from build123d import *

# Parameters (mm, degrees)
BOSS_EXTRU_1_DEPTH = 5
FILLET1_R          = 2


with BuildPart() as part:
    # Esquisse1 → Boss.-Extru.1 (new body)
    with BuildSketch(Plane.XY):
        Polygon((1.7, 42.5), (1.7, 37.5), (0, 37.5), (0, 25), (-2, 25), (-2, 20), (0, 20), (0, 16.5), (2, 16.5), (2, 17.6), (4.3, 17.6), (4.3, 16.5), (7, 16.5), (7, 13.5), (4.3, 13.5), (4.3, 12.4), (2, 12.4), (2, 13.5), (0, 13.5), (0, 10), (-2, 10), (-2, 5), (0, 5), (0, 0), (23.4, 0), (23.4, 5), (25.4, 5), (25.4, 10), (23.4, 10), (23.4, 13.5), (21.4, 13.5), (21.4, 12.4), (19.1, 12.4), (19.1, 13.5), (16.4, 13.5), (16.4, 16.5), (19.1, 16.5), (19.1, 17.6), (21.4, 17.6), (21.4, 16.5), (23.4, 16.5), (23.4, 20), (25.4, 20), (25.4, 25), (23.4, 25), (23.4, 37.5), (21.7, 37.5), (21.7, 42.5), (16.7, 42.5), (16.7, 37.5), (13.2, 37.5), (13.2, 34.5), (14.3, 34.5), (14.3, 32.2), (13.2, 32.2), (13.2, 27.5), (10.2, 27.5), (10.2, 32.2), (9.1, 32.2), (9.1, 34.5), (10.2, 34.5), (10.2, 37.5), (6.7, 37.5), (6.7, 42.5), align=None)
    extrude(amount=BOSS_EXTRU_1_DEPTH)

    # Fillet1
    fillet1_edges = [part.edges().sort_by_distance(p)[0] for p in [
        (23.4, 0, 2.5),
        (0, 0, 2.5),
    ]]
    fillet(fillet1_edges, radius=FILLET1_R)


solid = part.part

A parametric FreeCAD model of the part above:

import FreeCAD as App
import Part
import Sketcher
Q = App.Units.Quantity


def edges_at(feature, points):
    """Names of the edges that pass closest to the given points."""
    edges = feature.Shape.Edges
    near = lambda p: min(range(len(edges)), key=lambda i: edges[i].distToShape(Part.Vertex(*p))[0])
    return sorted({f"Edge{near(p) + 1}" for p in points})

doc = App.newDocument("Part")
body = doc.addObject("PartDesign::Body", "Body")

sketch1 = body.newObject("Sketcher::SketchObject", "Sketch")
sketch1.AttachmentSupport = (doc.getObject("XY_Plane"), [""])
sketch1.MapMode = "FlatFace"
sketch1.addGeometry([
    Part.LineSegment(App.Vector(1.7, 42.5, 0), App.Vector(1.7, 37.5, 0)),
    Part.LineSegment(App.Vector(1.7, 37.5, 0), App.Vector(0, 37.5, 0)),
    Part.LineSegment(App.Vector(0, 37.5, 0), App.Vector(0, 25, 0)),
    Part.LineSegment(App.Vector(0, 25, 0), App.Vector(-2, 25, 0)),
    Part.LineSegment(App.Vector(-2, 25, 0), App.Vector(-2, 20, 0)),
    Part.LineSegment(App.Vector(-2, 20, 0), App.Vector(0, 20, 0)),
    Part.LineSegment(App.Vector(0, 20, 0), App.Vector(0, 16.5, 0)),
    Part.LineSegment(App.Vector(0, 16.5, 0), App.Vector(2, 16.5, 0)),
    Part.LineSegment(App.Vector(2, 16.5, 0), App.Vector(2, 17.6, 0)),
    Part.LineSegment(App.Vector(2, 17.6, 0), App.Vector(4.3, 17.6, 0)),
    Part.LineSegment(App.Vector(4.3, 17.6, 0), App.Vector(4.3, 16.5, 0)),
    Part.LineSegment(App.Vector(4.3, 16.5, 0), App.Vector(7, 16.5, 0)),
    Part.LineSegment(App.Vector(7, 16.5, 0), App.Vector(7, 13.5, 0)),
    Part.LineSegment(App.Vector(7, 13.5, 0), App.Vector(4.3, 13.5, 0)),
    Part.LineSegment(App.Vector(4.3, 13.5, 0), App.Vector(4.3, 12.4, 0)),
    Part.LineSegment(App.Vector(4.3, 12.4, 0), App.Vector(2, 12.4, 0)),
    Part.LineSegment(App.Vector(2, 12.4, 0), App.Vector(2, 13.5, 0)),
    Part.LineSegment(App.Vector(2, 13.5, 0), App.Vector(0, 13.5, 0)),
    Part.LineSegment(App.Vector(0, 13.5, 0), App.Vector(0, 10, 0)),
    Part.LineSegment(App.Vector(0, 10, 0), App.Vector(-2, 10, 0)),
    Part.LineSegment(App.Vector(-2, 10, 0), App.Vector(-2, 5, 0)),
    Part.LineSegment(App.Vector(-2, 5, 0), App.Vector(0, 5, 0)),
    Part.LineSegment(App.Vector(0, 5, 0), App.Vector(0, 0, 0)),
    Part.LineSegment(App.Vector(0, 0, 0), App.Vector(23.4, 0, 0)),
    Part.LineSegment(App.Vector(23.4, 0, 0), App.Vector(23.4, 5, 0)),
    Part.LineSegment(App.Vector(23.4, 5, 0), App.Vector(25.4, 5, 0)),
    Part.LineSegment(App.Vector(25.4, 5, 0), App.Vector(25.4, 10, 0)),
    Part.LineSegment(App.Vector(25.4, 10, 0), App.Vector(23.4, 10, 0)),
    Part.LineSegment(App.Vector(23.4, 10, 0), App.Vector(23.4, 13.5, 0)),
    Part.LineSegment(App.Vector(23.4, 13.5, 0), App.Vector(21.4, 13.5, 0)),
    Part.LineSegment(App.Vector(21.4, 13.5, 0), App.Vector(21.4, 12.4, 0)),
    Part.LineSegment(App.Vector(21.4, 12.4, 0), App.Vector(19.1, 12.4, 0)),
    Part.LineSegment(App.Vector(19.1, 12.4, 0), App.Vector(19.1, 13.5, 0)),
    Part.LineSegment(App.Vector(19.1, 13.5, 0), App.Vector(16.4, 13.5, 0)),
    Part.LineSegment(App.Vector(16.4, 13.5, 0), App.Vector(16.4, 16.5, 0)),
    Part.LineSegment(App.Vector(16.4, 16.5, 0), App.Vector(19.1, 16.5, 0)),
    Part.LineSegment(App.Vector(19.1, 16.5, 0), App.Vector(19.1, 17.6, 0)),
    Part.LineSegment(App.Vector(19.1, 17.6, 0), App.Vector(21.4, 17.6, 0)),
    Part.LineSegment(App.Vector(21.4, 17.6, 0), App.Vector(21.4, 16.5, 0)),
    Part.LineSegment(App.Vector(21.4, 16.5, 0), App.Vector(23.4, 16.5, 0)),
    Part.LineSegment(App.Vector(23.4, 16.5, 0), App.Vector(23.4, 20, 0)),
    Part.LineSegment(App.Vector(23.4, 20, 0), App.Vector(25.4, 20, 0)),
    Part.LineSegment(App.Vector(25.4, 20, 0), App.Vector(25.4, 25, 0)),
    Part.LineSegment(App.Vector(25.4, 25, 0), App.Vector(23.4, 25, 0)),
    Part.LineSegment(App.Vector(23.4, 25, 0), App.Vector(23.4, 37.5, 0)),
    Part.LineSegment(App.Vector(23.4, 37.5, 0), App.Vector(21.7, 37.5, 0)),
    Part.LineSegment(App.Vector(21.7, 37.5, 0), App.Vector(21.7, 42.5, 0)),
    Part.LineSegment(App.Vector(21.7, 42.5, 0), App.Vector(16.7, 42.5, 0)),
    Part.LineSegment(App.Vector(16.7, 42.5, 0), App.Vector(16.7, 37.5, 0)),
    Part.LineSegment(App.Vector(16.7, 37.5, 0), App.Vector(13.2, 37.5, 0)),
    Part.LineSegment(App.Vector(13.2, 37.5, 0), App.Vector(13.2, 34.5, 0)),
    Part.LineSegment(App.Vector(13.2, 34.5, 0), App.Vector(14.3, 34.5, 0)),
    Part.LineSegment(App.Vector(14.3, 34.5, 0), App.Vector(14.3, 32.2, 0)),
    Part.LineSegment(App.Vector(14.3, 32.2, 0), App.Vector(13.2, 32.2, 0)),
    Part.LineSegment(App.Vector(13.2, 32.2, 0), App.Vector(13.2, 27.5, 0)),
    Part.LineSegment(App.Vector(13.2, 27.5, 0), App.Vector(10.2, 27.5, 0)),
    Part.LineSegment(App.Vector(10.2, 27.5, 0), App.Vector(10.2, 32.2, 0)),
    Part.LineSegment(App.Vector(10.2, 32.2, 0), App.Vector(9.1, 32.2, 0)),
    Part.LineSegment(App.Vector(9.1, 32.2, 0), App.Vector(9.1, 34.5, 0)),
    Part.LineSegment(App.Vector(9.1, 34.5, 0), App.Vector(10.2, 34.5, 0)),
    Part.LineSegment(App.Vector(10.2, 34.5, 0), App.Vector(10.2, 37.5, 0)),
    Part.LineSegment(App.Vector(10.2, 37.5, 0), App.Vector(6.7, 37.5, 0)),
    Part.LineSegment(App.Vector(6.7, 37.5, 0), App.Vector(6.7, 42.5, 0)),
    Part.LineSegment(App.Vector(6.7, 42.5, 0), App.Vector(1.7, 42.5, 0)),
], False)
sketch1.addConstraint([
    Sketcher.Constraint("Coincident", 0, 2, 1, 1),
    Sketcher.Constraint("Coincident", 1, 2, 2, 1),
    Sketcher.Constraint("Coincident", 2, 2, 3, 1),
    Sketcher.Constraint("Coincident", 3, 2, 4, 1),
    Sketcher.Constraint("Coincident", 4, 2, 5, 1),
    Sketcher.Constraint("Coincident", 5, 2, 6, 1),
    Sketcher.Constraint("Coincident", 6, 2, 7, 1),
    Sketcher.Constraint("Coincident", 7, 2, 8, 1),
    Sketcher.Constraint("Coincident", 8, 2, 9, 1),
    Sketcher.Constraint("Coincident", 9, 2, 10, 1),
    Sketcher.Constraint("Coincident", 10, 2, 11, 1),
    Sketcher.Constraint("Coincident", 11, 2, 12, 1),
    Sketcher.Constraint("Coincident", 12, 2, 13, 1),
    Sketcher.Constraint("Coincident", 13, 2, 14, 1),
    Sketcher.Constraint("Coincident", 14, 2, 15, 1),
    Sketcher.Constraint("Coincident", 15, 2, 16, 1),
    Sketcher.Constraint("Coincident", 16, 2, 17, 1),
    Sketcher.Constraint("Coincident", 17, 2, 18, 1),
    Sketcher.Constraint("Coincident", 18, 2, 19, 1),
    Sketcher.Constraint("Coincident", 19, 2, 20, 1),
    Sketcher.Constraint("Coincident", 20, 2, 21, 1),
    Sketcher.Constraint("Coincident", 21, 2, 22, 1),
    Sketcher.Constraint("Coincident", 22, 2, 23, 1),
    Sketcher.Constraint("Coincident", 23, 2, 24, 1),
    Sketcher.Constraint("Coincident", 24, 2, 25, 1),
    Sketcher.Constraint("Coincident", 25, 2, 26, 1),
    Sketcher.Constraint("Coincident", 26, 2, 27, 1),
    Sketcher.Constraint("Coincident", 27, 2, 28, 1),
    Sketcher.Constraint("Coincident", 28, 2, 29, 1),
    Sketcher.Constraint("Coincident", 29, 2, 30, 1),
    Sketcher.Constraint("Coincident", 30, 2, 31, 1),
    Sketcher.Constraint("Coincident", 31, 2, 32, 1),
    Sketcher.Constraint("Coincident", 32, 2, 33, 1),
    Sketcher.Constraint("Coincident", 33, 2, 34, 1),
    Sketcher.Constraint("Coincident", 34, 2, 35, 1),
    Sketcher.Constraint("Coincident", 35, 2, 36, 1),
    Sketcher.Constraint("Coincident", 36, 2, 37, 1),
    Sketcher.Constraint("Coincident", 37, 2, 38, 1),
    Sketcher.Constraint("Coincident", 38, 2, 39, 1),
    Sketcher.Constraint("Coincident", 39, 2, 40, 1),
    Sketcher.Constraint("Coincident", 40, 2, 41, 1),
    Sketcher.Constraint("Coincident", 41, 2, 42, 1),
    Sketcher.Constraint("Coincident", 42, 2, 43, 1),
    Sketcher.Constraint("Coincident", 43, 2, 44, 1),
    Sketcher.Constraint("Coincident", 44, 2, 45, 1),
    Sketcher.Constraint("Coincident", 45, 2, 46, 1),
    Sketcher.Constraint("Coincident", 46, 2, 47, 1),
    Sketcher.Constraint("Coincident", 47, 2, 48, 1),
    Sketcher.Constraint("Coincident", 48, 2, 49, 1),
    Sketcher.Constraint("Coincident", 49, 2, 50, 1),
    Sketcher.Constraint("Coincident", 50, 2, 51, 1),
    Sketcher.Constraint("Coincident", 51, 2, 52, 1),
    Sketcher.Constraint("Coincident", 52, 2, 53, 1),
    Sketcher.Constraint("Coincident", 53, 2, 54, 1),
    Sketcher.Constraint("Coincident", 54, 2, 55, 1),
    Sketcher.Constraint("Coincident", 55, 2, 56, 1),
    Sketcher.Constraint("Coincident", 56, 2, 57, 1),
    Sketcher.Constraint("Coincident", 57, 2, 58, 1),
    Sketcher.Constraint("Coincident", 58, 2, 59, 1),
    Sketcher.Constraint("Coincident", 59, 2, 60, 1),
    Sketcher.Constraint("Coincident", 60, 2, 61, 1),
    Sketcher.Constraint("Coincident", 61, 2, 62, 1),
    Sketcher.Constraint("Coincident", 62, 2, 63, 1),
    Sketcher.Constraint("Coincident", 63, 2, 0, 1),
    Sketcher.Constraint("Vertical", 0),
    Sketcher.Constraint("Horizontal", 1),
    Sketcher.Constraint("Vertical", 2),
    Sketcher.Constraint("Horizontal", 3),
    Sketcher.Constraint("Vertical", 4),
    Sketcher.Constraint("Horizontal", 5),
    Sketcher.Constraint("Vertical", 6),
    Sketcher.Constraint("Horizontal", 7),
    Sketcher.Constraint("Vertical", 8),
    Sketcher.Constraint("Horizontal", 9),
    Sketcher.Constraint("Vertical", 10),
    Sketcher.Constraint("Horizontal", 11),
    Sketcher.Constraint("Vertical", 12),
    Sketcher.Constraint("Horizontal", 13),
    Sketcher.Constraint("Vertical", 14),
    Sketcher.Constraint("Horizontal", 15),
    Sketcher.Constraint("Vertical", 16),
    Sketcher.Constraint("Horizontal", 17),
    Sketcher.Constraint("Vertical", 18),
    Sketcher.Constraint("Horizontal", 19),
    Sketcher.Constraint("Vertical", 20),
    Sketcher.Constraint("Horizontal", 21),
    Sketcher.Constraint("Vertical", 22),
    Sketcher.Constraint("Horizontal", 23),
    Sketcher.Constraint("Vertical", 24),
    Sketcher.Constraint("Horizontal", 25),
    Sketcher.Constraint("Vertical", 26),
    Sketcher.Constraint("Horizontal", 27),
    Sketcher.Constraint("Vertical", 28),
    Sketcher.Constraint("Horizontal", 29),
    Sketcher.Constraint("Vertical", 30),
    Sketcher.Constraint("Horizontal", 31),
    Sketcher.Constraint("Vertical", 32),
    Sketcher.Constraint("Horizontal", 33),
    Sketcher.Constraint("Vertical", 34),
    Sketcher.Constraint("Horizontal", 35),
    Sketcher.Constraint("Vertical", 36),
    Sketcher.Constraint("Horizontal", 37),
    Sketcher.Constraint("Vertical", 38),
    Sketcher.Constraint("Horizontal", 39),
    Sketcher.Constraint("Vertical", 40),
    Sketcher.Constraint("Horizontal", 41),
    Sketcher.Constraint("Vertical", 42),
    Sketcher.Constraint("Horizontal", 43),
    Sketcher.Constraint("Vertical", 44),
    Sketcher.Constraint("Horizontal", 45),
    Sketcher.Constraint("Vertical", 46),
    Sketcher.Constraint("Horizontal", 47),
    Sketcher.Constraint("Vertical", 48),
    Sketcher.Constraint("Horizontal", 49),
    Sketcher.Constraint("Vertical", 50),
    Sketcher.Constraint("Horizontal", 51),
    Sketcher.Constraint("Vertical", 52),
    Sketcher.Constraint("Horizontal", 53),
    Sketcher.Constraint("Vertical", 54),
    Sketcher.Constraint("Horizontal", 55),
    Sketcher.Constraint("Vertical", 56),
    Sketcher.Constraint("Horizontal", 57),
    Sketcher.Constraint("Vertical", 58),
    Sketcher.Constraint("Horizontal", 59),
    Sketcher.Constraint("Vertical", 60),
    Sketcher.Constraint("Horizontal", 61),
    Sketcher.Constraint("Vertical", 62),
    Sketcher.Constraint("Horizontal", 63),
    Sketcher.Constraint("Coincident", 22, 2, -1, 1),
    Sketcher.Constraint("PointOnObject", 1, 2, -2),
    Sketcher.Constraint("PointOnObject", 5, 2, -2),
    Sketcher.Constraint("PointOnObject", 17, 2, -2),
    Sketcher.Constraint("Horizontal", 7, 2, 10, 2),
    Sketcher.Constraint("Horizontal", 13, 2, 16, 2),
    Sketcher.Constraint("Horizontal", 21, 2, 24, 2),
    Sketcher.Constraint("Horizontal", 19, 2, 26, 2),
    Sketcher.Constraint("Horizontal", 17, 2, 28, 2),
    Sketcher.Constraint("Horizontal", 15, 2, 30, 2),
    Sketcher.Constraint("Horizontal", 29, 2, 32, 2),
    Sketcher.Constraint("Horizontal", 11, 2, 34, 2),
    Sketcher.Constraint("Horizontal", 9, 2, 36, 2),
    Sketcher.Constraint("Horizontal", 35, 2, 38, 2),
    Sketcher.Constraint("Horizontal", 5, 2, 40, 2),
    Sketcher.Constraint("Horizontal", 3, 2, 42, 2),
    Sketcher.Constraint("Horizontal", 1, 2, 44, 2),
    Sketcher.Constraint("Horizontal", 45, 2, 48, 2),
    Sketcher.Constraint("Horizontal", 53, 2, 56, 2),
    Sketcher.Constraint("Horizontal", 51, 2, 58, 2),
    Sketcher.Constraint("Horizontal", 49, 2, 60, 2),
    Sketcher.Constraint("Horizontal", 47, 2, 62, 2),
    Sketcher.Constraint("Vertical", 10, 2, 13, 2),
    Sketcher.Constraint("Vertical", 8, 2, 15, 2),
    Sketcher.Constraint("Vertical", 4, 2, 19, 2),
    Sketcher.Constraint("Vertical", 24, 2, 27, 2),
    Sketcher.Constraint("Vertical", 32, 2, 35, 2),
    Sketcher.Constraint("Vertical", 30, 2, 37, 2),
    Sketcher.Constraint("Vertical", 28, 2, 39, 2),
    Sketcher.Constraint("Vertical", 26, 2, 41, 2),
    Sketcher.Constraint("Vertical", 40, 2, 43, 2),
    Sketcher.Constraint("Vertical", 50, 2, 53, 2),
    Sketcher.Constraint("Vertical", 56, 2, 59, 2),
    Sketcher.Constraint("Equal", 5, 7),
    Sketcher.Constraint("Equal", 21, 25),
    Sketcher.Constraint("Equal", 27, 29),
    Sketcher.Constraint("Equal", 15, 31),
    Sketcher.Constraint("Equal", 13, 33),
    Sketcher.Constraint("Equal", 1, 45),
    Sketcher.Constraint("Equal", 53, 57),
    Sketcher.Constraint("Equal", 49, 61),
    Sketcher.Constraint("Equal", 47, 63),
    Sketcher.Constraint("Equal", 63, 0),
    Sketcher.Constraint("Equal", 0, 4),
    Sketcher.Constraint("Equal", 61, 6),
    Sketcher.Constraint("Equal", 59, 8),
    Sketcher.Constraint("Equal", 55, 12),
    Sketcher.Constraint("Equal", 10, 14),
    Sketcher.Constraint("Equal", 6, 18),
    Sketcher.Constraint("Equal", 4, 20),
    Sketcher.Constraint("Equal", 20, 22),
    Sketcher.Constraint("Equal", 34, 50),
    Sketcher.Constraint("Equal", 37, 52),
    Sketcher.Constraint("DistanceX", 3, 2, 3, 1, Q("2 mm")),
    Sketcher.Constraint("DistanceX", 47, 2, 47, 1, Q("5 mm")),
    Sketcher.Constraint("DistanceX", 55, 2, 55, 1, Q("3 mm")),
    Sketcher.Constraint("DistanceX", 1, 2, 1, 1, Q("1.7 mm")),
    Sketcher.Constraint("DistanceX", 9, 1, 9, 2, Q("2.3 mm")),
    Sketcher.Constraint("DistanceX", 11, 1, 11, 2, Q("2.7 mm")),
    Sketcher.Constraint("DistanceX", 23, 1, 23, 2, Q("23.4 mm")),
    Sketcher.Constraint("DistanceX", 51, 1, 51, 2, Q("1.1 mm")),
    Sketcher.Constraint("DistanceY", 2, 2, 2, 1, Q("12.5 mm")),
    Sketcher.Constraint("DistanceY", 54, 2, 54, 1, Q("4.7 mm")),
])
pad1 = body.newObject("PartDesign::Pad", "Pad")
pad1.Profile = sketch1
pad1.Length = 5
doc.recompute()

fillet = body.newObject("PartDesign::Fillet", "Fillet")
fillet.Base = (pad1, edges_at(pad1, [(23.4, 0, 2.5), (0, 0, 2.5)]))
fillet.Radius = 2

doc.recompute()
